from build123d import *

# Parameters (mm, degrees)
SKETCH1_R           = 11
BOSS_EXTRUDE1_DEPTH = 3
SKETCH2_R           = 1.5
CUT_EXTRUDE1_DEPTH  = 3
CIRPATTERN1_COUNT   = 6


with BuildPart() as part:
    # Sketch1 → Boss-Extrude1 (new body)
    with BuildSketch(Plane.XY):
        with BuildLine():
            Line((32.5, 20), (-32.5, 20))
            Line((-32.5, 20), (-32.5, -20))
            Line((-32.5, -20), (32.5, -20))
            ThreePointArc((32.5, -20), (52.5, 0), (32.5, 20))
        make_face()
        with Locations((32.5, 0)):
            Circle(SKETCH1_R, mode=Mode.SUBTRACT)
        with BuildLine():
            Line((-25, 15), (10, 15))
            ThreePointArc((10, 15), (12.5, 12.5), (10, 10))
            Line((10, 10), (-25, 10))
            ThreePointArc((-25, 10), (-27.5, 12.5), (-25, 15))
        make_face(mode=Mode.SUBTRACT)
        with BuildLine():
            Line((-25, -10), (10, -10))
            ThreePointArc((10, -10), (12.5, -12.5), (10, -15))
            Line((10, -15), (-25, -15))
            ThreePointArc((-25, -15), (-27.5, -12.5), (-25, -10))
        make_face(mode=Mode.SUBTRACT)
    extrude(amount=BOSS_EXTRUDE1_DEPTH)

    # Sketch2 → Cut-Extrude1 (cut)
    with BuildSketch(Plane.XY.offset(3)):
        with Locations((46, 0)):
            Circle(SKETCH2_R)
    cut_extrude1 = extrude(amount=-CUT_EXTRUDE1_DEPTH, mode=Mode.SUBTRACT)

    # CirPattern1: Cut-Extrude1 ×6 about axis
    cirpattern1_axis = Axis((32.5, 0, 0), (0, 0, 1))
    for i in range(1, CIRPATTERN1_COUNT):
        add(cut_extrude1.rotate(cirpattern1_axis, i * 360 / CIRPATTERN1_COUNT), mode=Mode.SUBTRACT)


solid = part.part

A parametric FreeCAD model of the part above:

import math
import FreeCAD as App
import Part
import Sketcher
Q = App.Units.Quantity

doc = App.newDocument("Part")
params = doc.addObject("Spreadsheet::Sheet", "Params")
for row, (alias, value) in enumerate([
    ("sketch1_diameter", "22 mm"),
    ("sketch1_radius", "20 mm"),
    ("sketch1_radius2", "2.5 mm"),
    ("sketch1_width", "65 mm"),
    ("sketch1_width2", "35 mm"),
    ("pad1_length", "3 mm"),
    ("sketch2_diameter", "3 mm"),
    ("pocket1_length", "3 mm"),
], start=1):
    params.set(f"A{row}", alias)
    params.set(f"B{row}", "=" + value)
    params.setAlias(f"B{row}", alias)

body = doc.addObject("PartDesign::Body", "Body")

# Sketch on XY plane
sketch1 = doc.addObject("Sketcher::SketchObject", "Sketch")
body.addObject(sketch1)
sketch1.AttachmentSupport = (doc.XY_Plane, [""])
sketch1.MapMode = "FlatFace"
sketch1.addGeometry([
    Part.LineSegment(App.Vector(32.5, 20, 0), App.Vector(-32.5, 20, 0)),  # 0
    Part.LineSegment(App.Vector(-32.5, 20, 0), App.Vector(-32.5, -20, 0)),  # 1
    Part.LineSegment(App.Vector(-32.5, -20, 0), App.Vector(32.5, -20, 0)),  # 2
    Part.ArcOfCircle(Part.Circle(App.Vector(32.5, 0, 0), App.Vector(0, 0, 1), 20), math.radians(-90), math.radians(90)),  # 3
    Part.ArcOfCircle(Part.Circle(App.Vector(-25, -12.5, 0), App.Vector(0, 0, 1), 2.5), math.radians(90), math.radians(270)),  # 4
    Part.LineSegment(App.Vector(-25, -10, 0), App.Vector(10, -10, 0)),  # 5
    Part.ArcOfCircle(Part.Circle(App.Vector(10, -12.5, 0), App.Vector(0, 0, 1), 2.5), math.radians(-90), math.radians(90)),  # 6
    Part.LineSegment(App.Vector(10, -15, 0), App.Vector(-25, -15, 0)),  # 7
    Part.ArcOfCircle(Part.Circle(App.Vector(-25, 12.5, 0), App.Vector(0, 0, 1), 2.5), math.radians(90), math.radians(270)),  # 8
    Part.LineSegment(App.Vector(-25, 15, 0), App.Vector(10, 15, 0)),  # 9
    Part.ArcOfCircle(Part.Circle(App.Vector(10, 12.5, 0), App.Vector(0, 0, 1), 2.5), math.radians(-90), math.radians(90)),  # 10
    Part.LineSegment(App.Vector(10, 10, 0), App.Vector(-25, 10, 0)),  # 11
    Part.Circle(App.Vector(32.5, 0, 0), App.Vector(0, 0, 1), 11),  # 12
], False)
sketch1.addConstraint([
    Sketcher.Constraint("Coincident", 0, 2, 1, 1),
    Sketcher.Constraint("Coincident", 1, 2, 2, 1),
    Sketcher.Constraint("Tangent", 2, 2, 3, 1),
    Sketcher.Constraint("Tangent", 3, 2, 0, 1),
    Sketcher.Constraint("Tangent", 4, 1, 5, 1),
    Sketcher.Constraint("Tangent", 5, 2, 6, 2),
    Sketcher.Constraint("Tangent", 6, 1, 7, 1),
    Sketcher.Constraint("Tangent", 7, 2, 4, 2),
    Sketcher.Constraint("Tangent", 8, 1, 9, 1),
    Sketcher.Constraint("Tangent", 9, 2, 10, 2),
    Sketcher.Constraint("Tangent", 10, 1, 11, 1),
    Sketcher.Constraint("Tangent", 11, 2, 8, 2),
    Sketcher.Constraint("Horizontal", 0),
    Sketcher.Constraint("Vertical", 1),
    Sketcher.Constraint("Horizontal", 2),
    Sketcher.Constraint("Horizontal", 5),
    Sketcher.Constraint("Horizontal", 7),
    Sketcher.Constraint("Horizontal", 9),
    Sketcher.Constraint("Horizontal", 11),
    Sketcher.Constraint("Coincident", 12, 3, 3, 3),
    Sketcher.Constraint("Equal", 6, 8),
    Sketcher.Constraint("Symmetric", 0, 2, 2, 2, -1, 1),
    Sketcher.Constraint("Symmetric", 4, 3, 8, 3, -1),
    Sketcher.Constraint("Vertical", 6, 3, 10, 3),
    Sketcher.Constraint("Diameter", 12, Q("22 mm")),
    Sketcher.Constraint("Radius", 3, Q("20 mm")),
    Sketcher.Constraint("Radius", 4, Q("2.5 mm")),
    Sketcher.Constraint("DistanceX", 0, 2, 0, 1, Q("65 mm")),
    Sketcher.Constraint("DistanceX", 5, 1, 5, 2, Q("35 mm")),
    Sketcher.Constraint("DistanceX", 4, 3, -1, 1, Q("25 mm")),
    Sketcher.Constraint("DistanceY", 4, 1, -1, 1, Q("10 mm")),
])
sketch1.setExpression("Constraints[24]", "Params.sketch1_diameter")
sketch1.setExpression("Constraints[25]", "Params.sketch1_radius")
sketch1.setExpression("Constraints[26]", "Params.sketch1_radius2")
sketch1.setExpression("Constraints[27]", "Params.sketch1_width")
sketch1.setExpression("Constraints[28]", "Params.sketch1_width2")
pad1 = doc.addObject("PartDesign::Pad", "Pad")
body.addObject(pad1)
pad1.Profile = sketch1
pad1.setExpression("Length", "Params.pad1_length")

# Sketch on XY plane
sketch2 = doc.addObject("Sketcher::SketchObject", "Sketch001")
body.addObject(sketch2)
sketch2.AttachmentSupport = (doc.XY_Plane, [""])
sketch2.MapMode = "FlatFace"
sketch2.AttachmentOffset = App.Placement(App.Vector(0, 0, 3), App.Rotation())
sketch2.addGeometry(Part.Circle(App.Vector(46, 0, 0), App.Vector(0, 0, 1), 1.5), False)
sketch2.addConstraint([
    Sketcher.Constraint("PointOnObject", 0, 3, -1),
    Sketcher.Constraint("Diameter", 0, Q("3 mm")),
    Sketcher.Constraint("DistanceX", -1, 1, 0, 3, Q("46 mm")),
])
sketch2.setExpression("Constraints[1]", "Params.sketch2_diameter")
pocket1 = doc.addObject("PartDesign::Pocket", "Pocket")
body.addObject(pocket1)
pocket1.Profile = sketch2
pocket1.setExpression("Length", "Params.pocket1_length")
doc.recompute()

datumline = doc.addObject("PartDesign::Line", "DatumLine")
body.addObject(datumline)
datumline.Placement = App.Placement(App.Vector(32.5, 0, 0), App.Rotation(App.Vector(0, 0, 1), App.Vector(0, 0, 1)))
polarpattern = doc.addObject("PartDesign::PolarPattern", "PolarPattern")
body.addObject(polarpattern)
polarpattern.Originals = [pocket1]
polarpattern.Axis = (datumline, [""])
polarpattern.Angle = 360
polarpattern.Occurrences = 6
body.Tip = polarpattern

doc.recompute()
